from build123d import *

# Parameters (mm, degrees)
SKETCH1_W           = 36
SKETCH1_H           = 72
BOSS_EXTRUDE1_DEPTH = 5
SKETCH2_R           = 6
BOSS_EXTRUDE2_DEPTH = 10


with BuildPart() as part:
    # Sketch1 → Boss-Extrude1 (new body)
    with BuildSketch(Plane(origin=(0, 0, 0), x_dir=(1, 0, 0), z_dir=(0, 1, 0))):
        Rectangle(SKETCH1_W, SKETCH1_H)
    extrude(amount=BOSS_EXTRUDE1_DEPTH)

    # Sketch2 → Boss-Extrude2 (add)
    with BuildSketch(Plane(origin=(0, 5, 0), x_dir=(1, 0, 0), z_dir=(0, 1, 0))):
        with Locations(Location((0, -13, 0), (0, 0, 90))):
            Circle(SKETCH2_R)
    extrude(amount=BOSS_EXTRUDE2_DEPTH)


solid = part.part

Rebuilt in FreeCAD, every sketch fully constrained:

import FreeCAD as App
import Part
import Sketcher
from FreeCAD import Vector

doc = App.newDocument("Part")
body = doc.addObject("PartDesign::Body", "Body")

# Sketch on XZ plane
sketch1 = body.newObject("Sketcher::SketchObject", "Sketch")
sketch1.AttachmentSupport = (doc.getObject("XZ_Plane"), [""])
sketch1.MapMode = "FlatFace"
sketch1.addGeometry(Part.LineSegment(Vector(-18, -36, 0), Vector(-18, 36, 0)), False)
sketch1.addGeometry(Part.LineSegment(Vector(-18, 36, 0), Vector(18, 36, 0)), False)
sketch1.addGeometry(Part.LineSegment(Vector(18, 36, 0), Vector(18, -36, 0)), False)
sketch1.addGeometry(Part.LineSegment(Vector(18, -36, 0), Vector(-18, -36, 0)), False)
sketch1.addConstraint(Sketcher.Constraint("Coincident", 0, 2, 1, 1))
sketch1.addConstraint(Sketcher.Constraint("Coincident", 1, 2, 2, 1))
sketch1.addConstraint(Sketcher.Constraint("Coincident", 2, 2, 3, 1))
sketch1.addConstraint(Sketcher.Constraint("Coincident", 3, 2, 0, 1))
sketch1.addConstraint(Sketcher.Constraint("Vertical", 0))
sketch1.addConstraint(Sketcher.Constraint("Horizontal", 1))
sketch1.addConstraint(Sketcher.Constraint("Vertical", 2))
sketch1.addConstraint(Sketcher.Constraint("Horizontal", 3))
sketch1.addConstraint(Sketcher.Constraint("Symmetric", 0, 2, 2, 2, -1, 1))
sketch1.addConstraint(Sketcher.Constraint("DistanceX", 1, 1, 1, 2, 36.0))
sketch1.addConstraint(Sketcher.Constraint("DistanceY", 0, 1, 0, 2, 72.0))
pad1 = body.newObject("PartDesign::Pad", "Pad")
pad1.Profile = sketch1
pad1.Length = 5
pad1.Reversed = True

# Sketch on XZ plane
sketch2 = body.newObject("Sketcher::SketchObject", "Sketch001")
sketch2.AttachmentSupport = (doc.getObject("XZ_Plane"), [""])
sketch2.MapMode = "FlatFace"
sketch2.AttachmentOffset = App.Placement(Vector(0, 0, -5), App.Rotation())
sketch2.addGeometry(Part.Circle(Vector(0, 13, 0), Vector(0, 0, 1), 6), False)
sketch2.addConstraint(Sketcher.Constraint("PointOnObject", 0, 3, -2))
sketch2.addConstraint(Sketcher.Constraint("Diameter", 0, 12.0))
sketch2.addConstraint(Sketcher.Constraint("DistanceY", -1, 1, 0, 3, 13.0))
pad2 = body.newObject("PartDesign::Pad", "Pad001")
pad2.Profile = sketch2
pad2.Length = 10
pad2.Reversed = True

doc.recompute()
